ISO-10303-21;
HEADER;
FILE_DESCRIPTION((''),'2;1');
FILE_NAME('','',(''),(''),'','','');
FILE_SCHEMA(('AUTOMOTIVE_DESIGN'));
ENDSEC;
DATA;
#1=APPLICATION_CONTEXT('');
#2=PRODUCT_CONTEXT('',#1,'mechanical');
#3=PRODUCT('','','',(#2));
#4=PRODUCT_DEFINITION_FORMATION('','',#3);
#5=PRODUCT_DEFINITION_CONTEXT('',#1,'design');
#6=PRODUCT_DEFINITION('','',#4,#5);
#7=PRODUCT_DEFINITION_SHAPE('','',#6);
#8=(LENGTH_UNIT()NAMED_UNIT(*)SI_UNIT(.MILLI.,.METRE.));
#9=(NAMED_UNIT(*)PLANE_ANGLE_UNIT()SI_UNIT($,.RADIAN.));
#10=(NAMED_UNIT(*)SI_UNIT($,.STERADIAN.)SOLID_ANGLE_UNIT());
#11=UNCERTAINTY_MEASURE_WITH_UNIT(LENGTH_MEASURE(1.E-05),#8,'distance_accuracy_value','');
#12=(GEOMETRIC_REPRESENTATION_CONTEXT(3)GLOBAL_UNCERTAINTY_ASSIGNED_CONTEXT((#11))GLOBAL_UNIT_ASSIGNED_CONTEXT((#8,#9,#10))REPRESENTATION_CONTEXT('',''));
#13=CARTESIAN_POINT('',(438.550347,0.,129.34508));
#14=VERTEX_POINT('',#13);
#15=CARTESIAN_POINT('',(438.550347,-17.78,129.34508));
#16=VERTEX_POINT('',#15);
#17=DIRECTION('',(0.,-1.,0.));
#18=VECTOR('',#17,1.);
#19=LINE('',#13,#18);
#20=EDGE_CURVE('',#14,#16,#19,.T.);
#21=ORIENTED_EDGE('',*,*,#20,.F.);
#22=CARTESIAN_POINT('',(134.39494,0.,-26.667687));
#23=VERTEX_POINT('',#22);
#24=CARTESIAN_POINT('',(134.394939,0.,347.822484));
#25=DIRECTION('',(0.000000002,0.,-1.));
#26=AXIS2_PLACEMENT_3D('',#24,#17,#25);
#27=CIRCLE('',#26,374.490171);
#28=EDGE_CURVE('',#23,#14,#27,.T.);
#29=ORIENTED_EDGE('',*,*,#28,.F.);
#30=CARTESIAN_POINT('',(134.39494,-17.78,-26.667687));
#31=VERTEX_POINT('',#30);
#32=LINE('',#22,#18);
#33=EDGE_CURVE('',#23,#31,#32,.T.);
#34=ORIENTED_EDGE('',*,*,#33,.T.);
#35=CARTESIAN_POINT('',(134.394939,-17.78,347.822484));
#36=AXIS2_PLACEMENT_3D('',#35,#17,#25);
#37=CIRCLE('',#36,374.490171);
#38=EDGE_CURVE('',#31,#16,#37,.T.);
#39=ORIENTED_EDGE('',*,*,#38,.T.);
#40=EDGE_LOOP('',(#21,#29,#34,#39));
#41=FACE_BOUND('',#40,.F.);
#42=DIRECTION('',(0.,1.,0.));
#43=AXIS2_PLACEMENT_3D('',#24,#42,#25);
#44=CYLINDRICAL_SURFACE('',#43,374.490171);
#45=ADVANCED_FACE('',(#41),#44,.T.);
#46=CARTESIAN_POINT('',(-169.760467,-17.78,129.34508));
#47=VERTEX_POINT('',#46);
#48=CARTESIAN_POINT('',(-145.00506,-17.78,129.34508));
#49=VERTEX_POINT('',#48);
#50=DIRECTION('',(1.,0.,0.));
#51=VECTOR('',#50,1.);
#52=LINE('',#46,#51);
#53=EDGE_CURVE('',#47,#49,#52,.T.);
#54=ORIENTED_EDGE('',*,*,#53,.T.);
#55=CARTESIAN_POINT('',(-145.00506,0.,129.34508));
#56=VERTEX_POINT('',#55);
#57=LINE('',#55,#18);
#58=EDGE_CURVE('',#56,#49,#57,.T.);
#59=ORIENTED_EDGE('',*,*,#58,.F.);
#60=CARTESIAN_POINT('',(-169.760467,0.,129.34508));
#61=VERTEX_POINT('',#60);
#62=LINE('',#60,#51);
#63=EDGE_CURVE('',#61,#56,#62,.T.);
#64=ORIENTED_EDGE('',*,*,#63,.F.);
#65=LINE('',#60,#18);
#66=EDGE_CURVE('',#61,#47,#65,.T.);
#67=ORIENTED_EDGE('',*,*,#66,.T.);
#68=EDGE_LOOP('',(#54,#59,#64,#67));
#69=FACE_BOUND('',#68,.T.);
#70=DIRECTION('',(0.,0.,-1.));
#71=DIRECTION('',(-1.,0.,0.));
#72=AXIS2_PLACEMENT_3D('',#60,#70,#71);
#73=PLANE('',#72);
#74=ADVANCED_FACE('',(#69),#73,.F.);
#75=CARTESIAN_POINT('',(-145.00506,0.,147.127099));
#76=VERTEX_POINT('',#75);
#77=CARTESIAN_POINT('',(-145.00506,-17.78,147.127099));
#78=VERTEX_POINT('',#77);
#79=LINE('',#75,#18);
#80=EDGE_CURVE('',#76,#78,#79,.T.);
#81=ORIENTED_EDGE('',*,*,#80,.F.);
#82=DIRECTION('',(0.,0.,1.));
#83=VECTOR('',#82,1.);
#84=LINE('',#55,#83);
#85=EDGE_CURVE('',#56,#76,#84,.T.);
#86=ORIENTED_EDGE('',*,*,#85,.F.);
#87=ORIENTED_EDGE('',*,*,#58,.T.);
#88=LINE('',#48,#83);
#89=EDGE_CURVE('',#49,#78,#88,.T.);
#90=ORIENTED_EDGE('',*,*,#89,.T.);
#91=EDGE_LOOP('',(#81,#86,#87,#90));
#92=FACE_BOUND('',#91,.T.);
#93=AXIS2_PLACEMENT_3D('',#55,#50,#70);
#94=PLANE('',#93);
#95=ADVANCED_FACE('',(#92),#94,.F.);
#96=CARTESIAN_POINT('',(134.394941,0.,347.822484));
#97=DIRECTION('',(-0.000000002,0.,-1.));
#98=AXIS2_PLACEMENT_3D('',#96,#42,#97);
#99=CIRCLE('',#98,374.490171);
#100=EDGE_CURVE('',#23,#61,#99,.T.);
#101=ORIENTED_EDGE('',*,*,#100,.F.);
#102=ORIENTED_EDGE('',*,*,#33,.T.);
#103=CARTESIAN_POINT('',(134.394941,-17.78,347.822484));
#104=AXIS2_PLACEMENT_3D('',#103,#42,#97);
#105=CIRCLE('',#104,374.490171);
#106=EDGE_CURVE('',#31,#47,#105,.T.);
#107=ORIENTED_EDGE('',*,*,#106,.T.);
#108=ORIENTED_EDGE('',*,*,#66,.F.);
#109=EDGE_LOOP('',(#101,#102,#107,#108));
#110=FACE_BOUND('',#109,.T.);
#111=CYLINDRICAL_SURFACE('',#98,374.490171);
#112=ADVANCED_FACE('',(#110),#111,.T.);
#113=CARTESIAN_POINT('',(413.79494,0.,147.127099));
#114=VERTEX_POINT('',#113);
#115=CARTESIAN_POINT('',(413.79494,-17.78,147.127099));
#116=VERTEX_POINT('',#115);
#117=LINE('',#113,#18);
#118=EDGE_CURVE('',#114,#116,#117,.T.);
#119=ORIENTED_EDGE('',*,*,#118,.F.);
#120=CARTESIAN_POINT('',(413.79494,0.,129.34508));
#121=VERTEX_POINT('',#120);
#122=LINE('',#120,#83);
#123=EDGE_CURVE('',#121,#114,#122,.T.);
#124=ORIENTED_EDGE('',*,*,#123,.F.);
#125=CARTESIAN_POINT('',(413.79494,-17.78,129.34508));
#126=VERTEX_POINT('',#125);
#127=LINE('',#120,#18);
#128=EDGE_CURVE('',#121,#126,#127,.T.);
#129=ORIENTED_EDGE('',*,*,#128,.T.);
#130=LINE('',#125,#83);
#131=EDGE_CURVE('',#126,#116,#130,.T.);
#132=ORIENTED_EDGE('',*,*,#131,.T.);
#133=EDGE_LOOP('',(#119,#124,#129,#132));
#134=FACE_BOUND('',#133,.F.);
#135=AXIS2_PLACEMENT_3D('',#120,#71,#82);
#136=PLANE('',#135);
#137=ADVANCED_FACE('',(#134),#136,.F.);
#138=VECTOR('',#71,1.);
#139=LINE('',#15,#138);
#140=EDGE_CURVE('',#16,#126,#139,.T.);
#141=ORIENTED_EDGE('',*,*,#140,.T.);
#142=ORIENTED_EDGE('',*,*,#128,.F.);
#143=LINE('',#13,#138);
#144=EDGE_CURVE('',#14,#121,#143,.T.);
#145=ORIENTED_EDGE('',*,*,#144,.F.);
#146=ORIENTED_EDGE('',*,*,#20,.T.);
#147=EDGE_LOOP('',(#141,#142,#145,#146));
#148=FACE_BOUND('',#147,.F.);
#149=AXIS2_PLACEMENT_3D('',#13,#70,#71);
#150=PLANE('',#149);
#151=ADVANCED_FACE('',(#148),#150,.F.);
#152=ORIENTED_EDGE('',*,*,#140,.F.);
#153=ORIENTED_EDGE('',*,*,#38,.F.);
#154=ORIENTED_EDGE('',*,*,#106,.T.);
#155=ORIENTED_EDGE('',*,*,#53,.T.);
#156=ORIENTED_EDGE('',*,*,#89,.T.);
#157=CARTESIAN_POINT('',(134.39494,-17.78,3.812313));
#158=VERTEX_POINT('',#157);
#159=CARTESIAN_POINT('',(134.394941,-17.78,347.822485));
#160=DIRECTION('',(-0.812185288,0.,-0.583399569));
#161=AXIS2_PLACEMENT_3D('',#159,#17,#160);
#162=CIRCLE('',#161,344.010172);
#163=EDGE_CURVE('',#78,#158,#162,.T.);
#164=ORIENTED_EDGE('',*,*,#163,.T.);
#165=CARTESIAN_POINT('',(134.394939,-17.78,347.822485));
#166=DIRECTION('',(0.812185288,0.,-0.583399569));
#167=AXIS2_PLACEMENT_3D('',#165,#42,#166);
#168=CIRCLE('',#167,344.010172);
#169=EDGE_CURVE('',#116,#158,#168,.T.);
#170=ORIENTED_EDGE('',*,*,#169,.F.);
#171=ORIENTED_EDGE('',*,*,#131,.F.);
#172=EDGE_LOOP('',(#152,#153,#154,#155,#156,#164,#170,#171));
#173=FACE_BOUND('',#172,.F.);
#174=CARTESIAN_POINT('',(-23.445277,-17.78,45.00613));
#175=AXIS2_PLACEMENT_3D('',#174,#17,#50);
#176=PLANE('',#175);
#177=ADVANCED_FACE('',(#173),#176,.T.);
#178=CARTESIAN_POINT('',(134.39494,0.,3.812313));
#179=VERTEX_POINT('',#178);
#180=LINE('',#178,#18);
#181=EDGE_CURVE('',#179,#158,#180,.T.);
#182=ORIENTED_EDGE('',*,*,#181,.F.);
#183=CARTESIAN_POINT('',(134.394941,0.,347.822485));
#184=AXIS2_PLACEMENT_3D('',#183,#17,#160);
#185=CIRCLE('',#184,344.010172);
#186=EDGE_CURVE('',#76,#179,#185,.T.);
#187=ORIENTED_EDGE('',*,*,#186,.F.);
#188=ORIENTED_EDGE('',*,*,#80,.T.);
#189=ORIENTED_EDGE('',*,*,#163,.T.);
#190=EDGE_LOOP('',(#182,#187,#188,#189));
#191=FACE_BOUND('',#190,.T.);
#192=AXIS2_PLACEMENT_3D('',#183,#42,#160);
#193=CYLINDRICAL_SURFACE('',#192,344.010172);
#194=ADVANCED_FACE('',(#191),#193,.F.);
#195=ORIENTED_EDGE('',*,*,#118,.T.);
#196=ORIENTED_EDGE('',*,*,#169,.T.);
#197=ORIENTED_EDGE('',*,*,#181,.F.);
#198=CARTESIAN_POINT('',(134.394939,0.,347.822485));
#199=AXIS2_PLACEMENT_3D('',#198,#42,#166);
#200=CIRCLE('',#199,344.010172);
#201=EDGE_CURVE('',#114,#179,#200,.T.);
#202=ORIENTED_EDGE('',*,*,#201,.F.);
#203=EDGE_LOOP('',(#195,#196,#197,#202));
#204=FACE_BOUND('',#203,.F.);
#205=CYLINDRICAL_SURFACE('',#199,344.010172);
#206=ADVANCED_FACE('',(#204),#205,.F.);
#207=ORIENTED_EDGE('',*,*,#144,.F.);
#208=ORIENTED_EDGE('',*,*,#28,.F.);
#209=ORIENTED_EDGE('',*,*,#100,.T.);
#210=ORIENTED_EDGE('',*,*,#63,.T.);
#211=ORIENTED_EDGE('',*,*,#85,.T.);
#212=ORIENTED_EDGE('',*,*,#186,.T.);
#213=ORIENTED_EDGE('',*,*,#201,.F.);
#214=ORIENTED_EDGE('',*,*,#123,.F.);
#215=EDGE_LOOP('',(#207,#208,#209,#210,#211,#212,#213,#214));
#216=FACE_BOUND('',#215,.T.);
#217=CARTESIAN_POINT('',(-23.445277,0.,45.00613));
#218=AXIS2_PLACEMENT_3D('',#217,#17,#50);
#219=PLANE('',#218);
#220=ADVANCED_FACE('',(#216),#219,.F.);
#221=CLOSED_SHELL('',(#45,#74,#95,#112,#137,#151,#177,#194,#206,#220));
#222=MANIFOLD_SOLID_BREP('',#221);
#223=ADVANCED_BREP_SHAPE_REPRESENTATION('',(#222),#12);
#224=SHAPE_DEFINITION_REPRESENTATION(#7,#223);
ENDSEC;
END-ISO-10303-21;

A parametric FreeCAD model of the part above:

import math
import FreeCAD as App
import Part
import Sketcher
Q = App.Units.Quantity

doc = App.newDocument("Part")
body = doc.addObject("PartDesign::Body", "Body")

# Sketch on XZ plane
sketch1 = doc.addObject("Sketcher::SketchObject", "Sketch")
body.addObject(sketch1)
sketch1.AttachmentSupport = (doc.XZ_Plane, [""])
sketch1.MapMode = "FlatFace"
sketch1.addGeometry(Part.ArcOfCircle(Part.Circle(App.Vector(134.394939, 347.822485, 0), App.Vector(0, 0, 1), 344.010172), math.radians(-90), math.radians(-35.690007)), False)
sketch1.addGeometry(Part.LineSegment(App.Vector(134.39494, 3.812313, 0), App.Vector(134.39494, -26.667687, 0)), False)
sketch1.addGeometry(Part.ArcOfCircle(Part.Circle(App.Vector(134.394939, 347.822484, 0), App.Vector(0, 0, 1), 374.490171), math.radians(-90), math.radians(-35.690007)), False)
sketch1.addGeometry(Part.LineSegment(App.Vector(438.550347, 129.34508, 0), App.Vector(413.79494, 129.34508, 0)), False)
sketch1.addGeometry(Part.LineSegment(App.Vector(413.79494, 129.34508, 0), App.Vector(413.79494, 147.127099, 0)), False)
sketch1.addConstraint(Sketcher.Constraint("Coincident", 0, 1, 1, 1))
sketch1.addConstraint(Sketcher.Constraint("Coincident", 1, 2, 2, 1))
sketch1.addConstraint(Sketcher.Constraint("Coincident", 2, 2, 3, 1))
sketch1.addConstraint(Sketcher.Constraint("Coincident", 3, 2, 4, 1))
sketch1.addConstraint(Sketcher.Constraint("Coincident", 4, 2, 0, 2))
sketch1.addConstraint(Sketcher.Constraint("Vertical", 1))
sketch1.addConstraint(Sketcher.Constraint("Horizontal", 3))
sketch1.addConstraint(Sketcher.Constraint("Vertical", 4))
sketch1.addConstraint(Sketcher.Constraint("Coincident", 2, 3, 0, 3))
sketch1.addConstraint(Sketcher.Constraint("Vertical", 2, 3, 0, 1))
sketch1.addConstraint(Sketcher.Constraint("DistanceY", 1, 2, 1, 1, Q("1.2 in")))
sketch1.addConstraint(Sketcher.Constraint("DistanceX", 1, 2, 3, 2, Q("11 in")))
sketch1.addConstraint(Sketcher.Constraint("Radius", 2, Q("374.490171 mm")))
sketch1.addConstraint(Sketcher.Constraint("DistanceY", 4, 1, 4, 2, Q("17.782019 mm")))
sketch1.addConstraint(Sketcher.Constraint("DistanceY", -1, 1, 4, 2, Q("147.127099 mm")))
sketch1.addConstraint(Sketcher.Constraint("DistanceX", -1, 1, 0, 3, Q("134.394939 mm")))
pad1 = doc.addObject("PartDesign::Pad", "Pad")
body.addObject(pad1)
pad1.Profile = sketch1
pad1.Length = Q("0.7 in")
body2 = doc.addObject("PartDesign::Body", "Body001")
doc.recompute()

body2.BaseFeature = body
doc.recompute()

mirroring = doc.addObject("Part::Mirroring", "Mirroring")
mirroring.Source = body
mirroring.Base = App.Vector(134.39494, -8.89, -11.427687)
mirroring.Normal = App.Vector(-1, 0, 0)
body3 = doc.addObject("PartDesign::Body", "Body002")
body3.BaseFeature = mirroring
boolean = doc.addObject("PartDesign::Boolean", "Boolean")
body2.addObject(boolean)
boolean.Type = "Fuse"
boolean.addObjects([body3])
doc.recompute()
mirroring.Visibility = False

doc.recompute()
